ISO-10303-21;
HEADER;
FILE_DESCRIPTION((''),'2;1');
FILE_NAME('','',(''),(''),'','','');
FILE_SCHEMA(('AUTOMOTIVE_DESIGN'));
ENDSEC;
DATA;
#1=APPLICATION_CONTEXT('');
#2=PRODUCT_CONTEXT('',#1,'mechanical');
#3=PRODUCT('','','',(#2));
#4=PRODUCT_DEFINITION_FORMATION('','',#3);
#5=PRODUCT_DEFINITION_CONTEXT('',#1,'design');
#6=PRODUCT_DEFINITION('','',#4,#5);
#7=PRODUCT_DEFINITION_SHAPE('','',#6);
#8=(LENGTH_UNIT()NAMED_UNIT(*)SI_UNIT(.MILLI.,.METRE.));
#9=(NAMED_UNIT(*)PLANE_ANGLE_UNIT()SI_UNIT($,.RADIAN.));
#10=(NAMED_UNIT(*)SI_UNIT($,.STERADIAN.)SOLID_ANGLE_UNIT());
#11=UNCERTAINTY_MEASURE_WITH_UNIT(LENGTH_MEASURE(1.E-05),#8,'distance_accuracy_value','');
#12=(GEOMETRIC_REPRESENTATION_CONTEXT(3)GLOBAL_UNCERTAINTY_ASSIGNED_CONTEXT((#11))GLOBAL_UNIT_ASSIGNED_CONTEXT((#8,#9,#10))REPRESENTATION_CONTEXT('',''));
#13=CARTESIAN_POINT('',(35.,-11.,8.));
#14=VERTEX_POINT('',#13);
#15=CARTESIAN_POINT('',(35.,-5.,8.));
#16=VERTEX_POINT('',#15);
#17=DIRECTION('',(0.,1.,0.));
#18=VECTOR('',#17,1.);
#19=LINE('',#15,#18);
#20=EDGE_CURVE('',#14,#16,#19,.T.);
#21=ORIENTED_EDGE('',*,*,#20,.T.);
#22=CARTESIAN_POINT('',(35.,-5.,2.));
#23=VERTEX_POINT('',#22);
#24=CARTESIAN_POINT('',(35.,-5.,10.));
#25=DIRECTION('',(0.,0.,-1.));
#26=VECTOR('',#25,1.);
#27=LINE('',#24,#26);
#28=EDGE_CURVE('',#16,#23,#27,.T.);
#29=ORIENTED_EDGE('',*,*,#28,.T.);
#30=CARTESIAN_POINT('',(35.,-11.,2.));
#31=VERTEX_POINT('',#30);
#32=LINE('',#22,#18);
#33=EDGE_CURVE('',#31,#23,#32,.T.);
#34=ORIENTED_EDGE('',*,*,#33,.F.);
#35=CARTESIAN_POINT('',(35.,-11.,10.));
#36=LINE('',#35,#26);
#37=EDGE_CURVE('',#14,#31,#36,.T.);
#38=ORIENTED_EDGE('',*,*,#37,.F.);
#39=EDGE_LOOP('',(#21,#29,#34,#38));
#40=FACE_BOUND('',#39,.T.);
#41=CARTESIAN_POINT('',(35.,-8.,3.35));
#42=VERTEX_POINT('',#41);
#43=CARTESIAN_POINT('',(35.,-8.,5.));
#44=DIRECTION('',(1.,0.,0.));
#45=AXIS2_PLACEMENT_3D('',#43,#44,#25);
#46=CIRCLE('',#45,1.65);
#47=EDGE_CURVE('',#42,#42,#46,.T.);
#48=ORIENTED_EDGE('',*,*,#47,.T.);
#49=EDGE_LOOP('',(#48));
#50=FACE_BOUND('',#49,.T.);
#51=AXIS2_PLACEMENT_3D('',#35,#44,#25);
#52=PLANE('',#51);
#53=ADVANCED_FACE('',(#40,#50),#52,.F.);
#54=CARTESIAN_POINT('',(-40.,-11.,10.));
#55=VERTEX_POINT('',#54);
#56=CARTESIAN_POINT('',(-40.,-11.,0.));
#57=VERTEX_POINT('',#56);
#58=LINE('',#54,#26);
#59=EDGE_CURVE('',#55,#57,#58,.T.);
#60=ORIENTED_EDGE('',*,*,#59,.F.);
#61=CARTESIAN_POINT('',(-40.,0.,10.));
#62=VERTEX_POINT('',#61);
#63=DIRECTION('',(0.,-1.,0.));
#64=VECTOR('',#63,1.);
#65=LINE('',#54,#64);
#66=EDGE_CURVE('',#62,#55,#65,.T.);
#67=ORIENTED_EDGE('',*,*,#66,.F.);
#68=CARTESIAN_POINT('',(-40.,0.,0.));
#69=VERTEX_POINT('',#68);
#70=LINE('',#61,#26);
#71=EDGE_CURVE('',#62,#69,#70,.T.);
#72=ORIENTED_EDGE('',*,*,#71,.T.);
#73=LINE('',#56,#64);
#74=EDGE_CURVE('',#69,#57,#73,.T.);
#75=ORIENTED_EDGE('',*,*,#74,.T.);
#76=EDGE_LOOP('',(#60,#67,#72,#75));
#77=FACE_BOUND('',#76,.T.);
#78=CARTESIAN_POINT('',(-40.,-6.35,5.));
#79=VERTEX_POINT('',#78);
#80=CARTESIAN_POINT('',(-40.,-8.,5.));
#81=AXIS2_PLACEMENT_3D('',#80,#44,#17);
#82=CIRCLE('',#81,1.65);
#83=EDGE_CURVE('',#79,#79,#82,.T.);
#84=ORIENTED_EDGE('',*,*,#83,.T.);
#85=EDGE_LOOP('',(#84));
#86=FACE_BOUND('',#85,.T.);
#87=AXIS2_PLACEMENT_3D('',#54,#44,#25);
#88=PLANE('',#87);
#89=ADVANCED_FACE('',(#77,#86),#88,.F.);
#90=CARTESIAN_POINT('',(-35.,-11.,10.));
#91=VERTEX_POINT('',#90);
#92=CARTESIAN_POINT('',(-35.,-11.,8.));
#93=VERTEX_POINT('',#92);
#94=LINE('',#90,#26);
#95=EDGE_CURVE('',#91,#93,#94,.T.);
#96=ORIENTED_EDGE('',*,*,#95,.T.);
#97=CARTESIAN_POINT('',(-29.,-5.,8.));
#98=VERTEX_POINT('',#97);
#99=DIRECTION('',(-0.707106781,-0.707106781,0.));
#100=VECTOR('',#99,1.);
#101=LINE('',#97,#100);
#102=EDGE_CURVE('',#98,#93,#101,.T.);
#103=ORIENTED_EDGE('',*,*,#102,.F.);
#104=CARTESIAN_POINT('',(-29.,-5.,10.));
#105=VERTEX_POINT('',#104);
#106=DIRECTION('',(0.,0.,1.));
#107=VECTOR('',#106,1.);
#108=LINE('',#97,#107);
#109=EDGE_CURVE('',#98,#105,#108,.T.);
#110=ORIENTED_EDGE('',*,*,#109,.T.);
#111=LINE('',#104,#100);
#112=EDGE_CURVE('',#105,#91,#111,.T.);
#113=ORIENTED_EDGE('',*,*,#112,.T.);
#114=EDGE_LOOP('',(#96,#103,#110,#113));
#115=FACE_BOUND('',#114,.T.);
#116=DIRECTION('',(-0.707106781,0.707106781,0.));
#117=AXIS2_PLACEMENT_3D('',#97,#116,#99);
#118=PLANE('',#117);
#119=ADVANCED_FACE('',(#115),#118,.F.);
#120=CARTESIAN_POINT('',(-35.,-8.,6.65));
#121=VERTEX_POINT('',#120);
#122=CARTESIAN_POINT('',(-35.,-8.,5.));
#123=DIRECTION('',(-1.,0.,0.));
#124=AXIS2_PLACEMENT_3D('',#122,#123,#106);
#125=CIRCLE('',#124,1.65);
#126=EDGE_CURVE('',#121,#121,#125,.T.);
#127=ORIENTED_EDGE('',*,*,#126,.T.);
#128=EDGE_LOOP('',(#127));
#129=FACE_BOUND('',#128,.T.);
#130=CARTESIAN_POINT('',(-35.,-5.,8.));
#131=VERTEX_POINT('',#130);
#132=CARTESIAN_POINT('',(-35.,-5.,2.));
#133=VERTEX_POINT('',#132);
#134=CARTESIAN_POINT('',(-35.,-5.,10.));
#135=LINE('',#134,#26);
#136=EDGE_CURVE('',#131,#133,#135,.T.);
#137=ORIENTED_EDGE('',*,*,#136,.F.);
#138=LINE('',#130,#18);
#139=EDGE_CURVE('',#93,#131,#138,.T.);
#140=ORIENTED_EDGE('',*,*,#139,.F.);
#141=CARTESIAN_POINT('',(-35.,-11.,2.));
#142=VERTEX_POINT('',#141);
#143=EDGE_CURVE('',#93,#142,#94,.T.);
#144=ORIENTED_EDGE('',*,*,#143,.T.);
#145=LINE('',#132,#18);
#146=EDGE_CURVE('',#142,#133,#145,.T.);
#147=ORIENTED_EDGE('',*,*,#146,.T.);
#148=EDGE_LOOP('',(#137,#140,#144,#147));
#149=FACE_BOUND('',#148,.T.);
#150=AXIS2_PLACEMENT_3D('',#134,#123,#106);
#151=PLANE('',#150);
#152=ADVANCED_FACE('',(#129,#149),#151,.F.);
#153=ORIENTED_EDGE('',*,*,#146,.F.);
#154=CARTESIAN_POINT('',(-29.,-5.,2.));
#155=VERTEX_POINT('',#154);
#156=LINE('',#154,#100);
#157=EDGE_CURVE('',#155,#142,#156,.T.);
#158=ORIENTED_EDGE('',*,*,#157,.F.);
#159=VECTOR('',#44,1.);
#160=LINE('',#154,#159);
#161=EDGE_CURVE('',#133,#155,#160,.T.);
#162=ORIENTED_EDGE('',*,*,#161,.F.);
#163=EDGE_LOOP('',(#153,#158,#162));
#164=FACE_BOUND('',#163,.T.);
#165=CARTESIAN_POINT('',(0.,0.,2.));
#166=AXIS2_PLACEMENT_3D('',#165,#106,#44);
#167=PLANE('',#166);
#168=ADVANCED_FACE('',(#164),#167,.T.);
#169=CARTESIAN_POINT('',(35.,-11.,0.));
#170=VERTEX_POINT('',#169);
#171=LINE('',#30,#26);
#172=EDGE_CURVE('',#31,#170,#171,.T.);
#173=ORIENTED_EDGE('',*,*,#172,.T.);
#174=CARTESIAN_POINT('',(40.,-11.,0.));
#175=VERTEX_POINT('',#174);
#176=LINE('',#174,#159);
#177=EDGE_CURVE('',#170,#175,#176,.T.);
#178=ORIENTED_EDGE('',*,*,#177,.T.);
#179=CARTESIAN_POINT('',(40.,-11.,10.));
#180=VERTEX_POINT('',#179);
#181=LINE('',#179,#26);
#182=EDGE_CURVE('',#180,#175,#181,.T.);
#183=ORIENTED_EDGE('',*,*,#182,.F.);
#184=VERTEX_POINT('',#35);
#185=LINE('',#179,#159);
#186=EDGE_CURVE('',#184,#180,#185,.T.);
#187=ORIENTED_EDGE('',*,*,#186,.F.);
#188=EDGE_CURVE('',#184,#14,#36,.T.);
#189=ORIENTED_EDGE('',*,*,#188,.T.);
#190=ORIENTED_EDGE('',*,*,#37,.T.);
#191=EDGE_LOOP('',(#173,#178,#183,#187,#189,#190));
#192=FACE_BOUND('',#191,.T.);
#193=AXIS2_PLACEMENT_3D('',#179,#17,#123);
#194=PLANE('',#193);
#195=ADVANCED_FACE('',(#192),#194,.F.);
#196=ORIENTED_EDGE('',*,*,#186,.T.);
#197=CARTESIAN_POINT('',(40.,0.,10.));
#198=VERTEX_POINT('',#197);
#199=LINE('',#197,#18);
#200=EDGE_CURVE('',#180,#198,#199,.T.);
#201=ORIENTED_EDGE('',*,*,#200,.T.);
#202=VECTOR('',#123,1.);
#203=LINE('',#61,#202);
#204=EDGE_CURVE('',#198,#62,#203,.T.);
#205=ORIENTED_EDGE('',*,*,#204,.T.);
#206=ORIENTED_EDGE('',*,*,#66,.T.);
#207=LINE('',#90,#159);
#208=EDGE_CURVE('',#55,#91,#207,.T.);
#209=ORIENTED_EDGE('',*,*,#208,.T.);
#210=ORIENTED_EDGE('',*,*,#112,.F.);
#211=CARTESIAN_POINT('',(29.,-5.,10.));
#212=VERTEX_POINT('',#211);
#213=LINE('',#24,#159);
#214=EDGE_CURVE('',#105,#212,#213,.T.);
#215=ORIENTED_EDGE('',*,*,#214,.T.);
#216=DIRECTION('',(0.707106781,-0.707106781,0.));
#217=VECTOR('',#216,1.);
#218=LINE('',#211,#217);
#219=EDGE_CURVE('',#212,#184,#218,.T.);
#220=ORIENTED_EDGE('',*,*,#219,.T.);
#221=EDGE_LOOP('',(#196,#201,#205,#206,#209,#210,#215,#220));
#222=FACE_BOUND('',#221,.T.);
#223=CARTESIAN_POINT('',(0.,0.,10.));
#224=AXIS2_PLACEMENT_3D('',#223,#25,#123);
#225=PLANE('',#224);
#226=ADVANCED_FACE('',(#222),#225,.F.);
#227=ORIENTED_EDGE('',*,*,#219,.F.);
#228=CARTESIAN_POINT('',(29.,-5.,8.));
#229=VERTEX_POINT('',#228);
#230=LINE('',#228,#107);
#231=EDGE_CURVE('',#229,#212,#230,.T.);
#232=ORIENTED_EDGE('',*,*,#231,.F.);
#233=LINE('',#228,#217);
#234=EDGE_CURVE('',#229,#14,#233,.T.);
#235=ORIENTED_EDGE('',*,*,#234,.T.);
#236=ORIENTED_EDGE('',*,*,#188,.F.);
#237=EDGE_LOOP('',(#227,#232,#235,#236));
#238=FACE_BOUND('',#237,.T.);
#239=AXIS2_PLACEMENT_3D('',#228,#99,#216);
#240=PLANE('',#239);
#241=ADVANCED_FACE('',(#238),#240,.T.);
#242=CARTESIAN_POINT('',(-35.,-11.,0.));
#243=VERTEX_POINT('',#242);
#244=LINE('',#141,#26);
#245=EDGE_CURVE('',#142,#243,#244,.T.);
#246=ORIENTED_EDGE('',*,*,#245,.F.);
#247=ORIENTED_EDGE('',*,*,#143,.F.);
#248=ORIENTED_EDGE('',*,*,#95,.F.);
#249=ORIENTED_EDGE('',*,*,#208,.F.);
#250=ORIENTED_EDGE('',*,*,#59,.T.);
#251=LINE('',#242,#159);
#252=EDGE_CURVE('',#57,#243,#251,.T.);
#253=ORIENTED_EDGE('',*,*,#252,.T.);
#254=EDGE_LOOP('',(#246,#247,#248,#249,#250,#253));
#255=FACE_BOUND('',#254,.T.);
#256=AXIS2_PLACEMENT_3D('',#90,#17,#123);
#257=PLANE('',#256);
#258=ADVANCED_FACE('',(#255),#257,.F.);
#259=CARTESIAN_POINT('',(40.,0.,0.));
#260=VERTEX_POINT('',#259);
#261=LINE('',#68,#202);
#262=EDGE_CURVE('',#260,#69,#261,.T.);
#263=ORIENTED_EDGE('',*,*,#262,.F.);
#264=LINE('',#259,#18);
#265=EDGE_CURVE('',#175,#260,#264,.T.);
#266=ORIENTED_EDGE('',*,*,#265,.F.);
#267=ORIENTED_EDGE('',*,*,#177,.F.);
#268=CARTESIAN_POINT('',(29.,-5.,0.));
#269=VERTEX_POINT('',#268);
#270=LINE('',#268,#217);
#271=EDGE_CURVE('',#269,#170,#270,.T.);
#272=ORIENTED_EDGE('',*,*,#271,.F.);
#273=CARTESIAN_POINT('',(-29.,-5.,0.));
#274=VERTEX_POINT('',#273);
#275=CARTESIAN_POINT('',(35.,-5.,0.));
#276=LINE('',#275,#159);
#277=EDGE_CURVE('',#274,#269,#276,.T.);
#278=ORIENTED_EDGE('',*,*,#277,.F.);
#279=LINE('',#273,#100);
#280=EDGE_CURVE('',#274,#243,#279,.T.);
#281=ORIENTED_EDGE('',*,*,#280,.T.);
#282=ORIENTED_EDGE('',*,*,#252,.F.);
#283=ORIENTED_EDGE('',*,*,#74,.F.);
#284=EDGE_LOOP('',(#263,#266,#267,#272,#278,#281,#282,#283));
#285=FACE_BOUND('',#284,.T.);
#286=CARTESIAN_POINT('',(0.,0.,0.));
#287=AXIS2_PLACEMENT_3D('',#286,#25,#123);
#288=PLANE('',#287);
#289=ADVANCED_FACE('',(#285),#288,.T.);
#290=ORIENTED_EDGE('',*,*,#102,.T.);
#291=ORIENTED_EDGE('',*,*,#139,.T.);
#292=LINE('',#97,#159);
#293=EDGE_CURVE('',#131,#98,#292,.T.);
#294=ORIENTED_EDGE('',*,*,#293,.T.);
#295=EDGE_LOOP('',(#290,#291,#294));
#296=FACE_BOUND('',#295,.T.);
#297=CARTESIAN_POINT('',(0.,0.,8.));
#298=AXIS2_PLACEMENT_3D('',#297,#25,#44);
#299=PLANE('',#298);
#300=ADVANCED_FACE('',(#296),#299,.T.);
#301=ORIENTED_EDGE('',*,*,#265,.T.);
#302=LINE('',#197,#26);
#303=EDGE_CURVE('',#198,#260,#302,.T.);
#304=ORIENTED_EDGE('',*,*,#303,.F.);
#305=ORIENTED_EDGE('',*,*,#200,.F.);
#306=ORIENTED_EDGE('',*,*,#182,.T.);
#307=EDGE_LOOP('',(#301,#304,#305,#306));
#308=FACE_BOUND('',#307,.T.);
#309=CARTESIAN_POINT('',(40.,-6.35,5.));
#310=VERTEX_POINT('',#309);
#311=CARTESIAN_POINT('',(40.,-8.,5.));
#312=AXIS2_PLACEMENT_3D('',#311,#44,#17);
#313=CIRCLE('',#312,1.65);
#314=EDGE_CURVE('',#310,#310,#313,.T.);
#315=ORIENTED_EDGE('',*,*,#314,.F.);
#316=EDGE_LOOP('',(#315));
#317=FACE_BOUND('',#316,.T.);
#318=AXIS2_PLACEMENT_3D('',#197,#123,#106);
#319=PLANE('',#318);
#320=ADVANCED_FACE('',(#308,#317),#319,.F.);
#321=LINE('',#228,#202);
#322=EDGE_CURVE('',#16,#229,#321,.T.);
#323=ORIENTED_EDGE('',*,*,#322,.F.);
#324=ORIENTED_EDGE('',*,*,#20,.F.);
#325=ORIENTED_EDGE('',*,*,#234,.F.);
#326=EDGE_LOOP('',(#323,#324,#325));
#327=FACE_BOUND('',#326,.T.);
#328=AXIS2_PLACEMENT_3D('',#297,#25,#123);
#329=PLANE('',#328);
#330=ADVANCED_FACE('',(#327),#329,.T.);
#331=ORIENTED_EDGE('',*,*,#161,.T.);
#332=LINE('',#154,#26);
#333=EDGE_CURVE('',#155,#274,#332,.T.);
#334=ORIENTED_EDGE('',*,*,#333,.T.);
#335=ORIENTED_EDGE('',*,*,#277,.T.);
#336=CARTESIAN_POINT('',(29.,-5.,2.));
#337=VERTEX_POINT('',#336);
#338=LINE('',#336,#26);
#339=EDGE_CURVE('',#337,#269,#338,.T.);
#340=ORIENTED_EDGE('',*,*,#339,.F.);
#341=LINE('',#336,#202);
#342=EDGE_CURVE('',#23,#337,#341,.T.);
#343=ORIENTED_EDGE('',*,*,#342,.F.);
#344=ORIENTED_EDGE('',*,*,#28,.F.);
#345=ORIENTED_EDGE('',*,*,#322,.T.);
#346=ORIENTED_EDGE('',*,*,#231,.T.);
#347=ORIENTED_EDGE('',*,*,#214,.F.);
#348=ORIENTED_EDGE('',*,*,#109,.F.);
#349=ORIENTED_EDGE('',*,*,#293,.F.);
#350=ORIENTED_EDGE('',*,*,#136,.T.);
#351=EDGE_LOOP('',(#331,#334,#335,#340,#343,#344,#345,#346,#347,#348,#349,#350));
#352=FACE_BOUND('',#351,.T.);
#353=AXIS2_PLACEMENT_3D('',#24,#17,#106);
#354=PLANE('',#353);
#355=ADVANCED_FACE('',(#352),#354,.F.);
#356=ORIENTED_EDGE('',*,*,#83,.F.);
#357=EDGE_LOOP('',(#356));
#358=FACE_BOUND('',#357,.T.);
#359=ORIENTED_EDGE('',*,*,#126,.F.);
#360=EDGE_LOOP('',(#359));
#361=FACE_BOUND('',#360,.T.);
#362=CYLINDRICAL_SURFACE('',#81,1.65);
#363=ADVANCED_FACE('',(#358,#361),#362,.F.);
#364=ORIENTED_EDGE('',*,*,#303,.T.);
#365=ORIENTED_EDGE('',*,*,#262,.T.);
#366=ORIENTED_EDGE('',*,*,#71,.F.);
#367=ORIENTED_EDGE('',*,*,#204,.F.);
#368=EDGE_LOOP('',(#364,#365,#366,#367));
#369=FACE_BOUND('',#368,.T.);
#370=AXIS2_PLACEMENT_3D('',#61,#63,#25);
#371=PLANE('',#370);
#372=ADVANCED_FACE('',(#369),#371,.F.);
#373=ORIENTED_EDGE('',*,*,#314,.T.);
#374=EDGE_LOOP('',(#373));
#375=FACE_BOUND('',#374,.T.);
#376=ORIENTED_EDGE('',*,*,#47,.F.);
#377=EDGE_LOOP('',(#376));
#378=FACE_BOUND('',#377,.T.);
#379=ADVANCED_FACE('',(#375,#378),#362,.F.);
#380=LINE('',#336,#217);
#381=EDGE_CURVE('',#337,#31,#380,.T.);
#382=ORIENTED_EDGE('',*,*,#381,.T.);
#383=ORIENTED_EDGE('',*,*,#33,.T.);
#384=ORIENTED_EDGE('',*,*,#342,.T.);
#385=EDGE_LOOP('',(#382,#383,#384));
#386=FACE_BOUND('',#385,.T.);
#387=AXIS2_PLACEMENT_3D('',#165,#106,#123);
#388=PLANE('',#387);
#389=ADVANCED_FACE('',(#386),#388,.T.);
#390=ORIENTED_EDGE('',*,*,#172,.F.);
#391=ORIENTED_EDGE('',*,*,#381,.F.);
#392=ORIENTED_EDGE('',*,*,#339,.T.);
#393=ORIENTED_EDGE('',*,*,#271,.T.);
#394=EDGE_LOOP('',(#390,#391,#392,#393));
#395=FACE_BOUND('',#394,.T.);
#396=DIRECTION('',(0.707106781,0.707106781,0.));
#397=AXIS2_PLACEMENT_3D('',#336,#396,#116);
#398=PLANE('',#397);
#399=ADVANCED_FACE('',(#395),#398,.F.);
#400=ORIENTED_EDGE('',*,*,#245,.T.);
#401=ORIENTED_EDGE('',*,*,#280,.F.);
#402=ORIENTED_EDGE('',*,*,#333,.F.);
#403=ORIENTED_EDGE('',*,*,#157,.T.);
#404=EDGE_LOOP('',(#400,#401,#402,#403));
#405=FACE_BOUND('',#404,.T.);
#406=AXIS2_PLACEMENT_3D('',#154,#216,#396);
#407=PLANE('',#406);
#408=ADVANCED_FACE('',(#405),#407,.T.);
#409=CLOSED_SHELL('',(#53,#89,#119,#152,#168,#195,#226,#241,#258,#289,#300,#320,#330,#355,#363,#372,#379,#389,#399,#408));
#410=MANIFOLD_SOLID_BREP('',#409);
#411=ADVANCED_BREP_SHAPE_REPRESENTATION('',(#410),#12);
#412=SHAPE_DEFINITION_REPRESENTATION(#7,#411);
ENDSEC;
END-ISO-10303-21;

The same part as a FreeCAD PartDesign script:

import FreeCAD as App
import Part
import Sketcher
Q = App.Units.Quantity


def add_polygon(sketch, points):
    """Adds a closed chain of lines whose ends are joined by coincident constraints."""
    first, n = sketch.GeometryCount, len(points)
    for a, b in zip(points, points[1:] + points[:1]):
        sketch.addGeometry(Part.LineSegment(App.Vector(*a, 0), App.Vector(*b, 0)), False)
    for i in range(n):
        sketch.addConstraint(Sketcher.Constraint("Coincident", first + i, 2, first + (i + 1) % n, 1))

doc = App.newDocument("Part")
body = doc.addObject("PartDesign::Body", "Body")

# Sketch on XY plane
sketch1 = body.newObject("Sketcher::SketchObject", "Sketch")
sketch1.AttachmentSupport = (doc.getObject("XY_Plane"), [""])
sketch1.MapMode = "FlatFace"
add_polygon(sketch1, [(40, 0), (-40, 0), (-40, -11), (-35, -11), (-35, -5), (35, -5), (35, -11), (40, -11)])  # lines 0-7
sketch1.addConstraint(Sketcher.Constraint("Horizontal", 0))
sketch1.addConstraint(Sketcher.Constraint("Vertical", 1))
sketch1.addConstraint(Sketcher.Constraint("Horizontal", 2))
sketch1.addConstraint(Sketcher.Constraint("Vertical", 3))
sketch1.addConstraint(Sketcher.Constraint("Horizontal", 4))
sketch1.addConstraint(Sketcher.Constraint("Vertical", 5))
sketch1.addConstraint(Sketcher.Constraint("Horizontal", 6))
sketch1.addConstraint(Sketcher.Constraint("Vertical", 7))
sketch1.addConstraint(Sketcher.Constraint("Symmetric", 0, 2, 7, 2, -1, 1))
sketch1.addConstraint(Sketcher.Constraint("Symmetric", 2, 2, 5, 2, -2))
sketch1.addConstraint(Sketcher.Constraint("DistanceX", 0, 2, 0, 1, Q("80 mm")))
sketch1.addConstraint(Sketcher.Constraint("DistanceX", 2, 1, 2, 2, Q("5 mm")))
sketch1.addConstraint(Sketcher.Constraint("DistanceY", 1, 2, 1, 1, Q("11 mm")))
sketch1.addConstraint(Sketcher.Constraint("DistanceY", 3, 1, 3, 2, Q("6 mm")))
pad1 = body.newObject("PartDesign::Pad", "Pad")
pad1.Profile = sketch1
pad1.Length = 10

# Sketch on YZ plane
sketch2 = body.newObject("Sketcher::SketchObject", "Sketch001")
sketch2.AttachmentSupport = (doc.getObject("YZ_Plane"), [""])
sketch2.MapMode = "FlatFace"
sketch2.AttachmentOffset = App.Placement(App.Vector(0, 0, -35), App.Rotation())
sketch2.addGeometry(Part.Circle(App.Vector(-8, 5, 0), App.Vector(0, 0, 1), 1.6), False)
sketch2.addConstraint(Sketcher.Constraint("Diameter", 0, Q("3.3 mm")))
sketch2.addConstraint(Sketcher.Constraint("DistanceX", 0, 3, -1, 1, Q("8 mm")))
sketch2.addConstraint(Sketcher.Constraint("DistanceY", -1, 1, 0, 3, Q("5 mm")))
pocket1 = body.newObject("PartDesign::Pocket", "Pocket")
pocket1.Profile = sketch2
pocket1.Type = "ThroughAll"
pocket1.Midplane = True

# Sketch on XY plane
sketch3 = body.newObject("Sketcher::SketchObject", "Sketch002")
sketch3.AttachmentSupport = (doc.getObject("XY_Plane"), [""])
sketch3.MapMode = "FlatFace"
add_polygon(sketch3, [(-29, -5), (-35, -11), (-35, -5)])  # lines 0-2
sketch3.addConstraint(Sketcher.Constraint("Vertical", 1))
sketch3.addConstraint(Sketcher.Constraint("Horizontal", 2))
sketch3.addConstraint(Sketcher.Constraint("Equal", 2, 1))
sketch3.addConstraint(Sketcher.Constraint("DistanceX", 2, 1, 2, 2, Q("6 mm")))
sketch3.addConstraint(Sketcher.Constraint("DistanceX", 0, 2, -1, 1, Q("35 mm")))
sketch3.addConstraint(Sketcher.Constraint("DistanceY", 0, 2, -1, 1, Q("11 mm")))
pad2 = body.newObject("PartDesign::Pad", "Pad001")
pad2.Profile = sketch3
pad2.Length = 2
doc.recompute()

datumplane = body.newObject("PartDesign::Plane", "DatumPlane")
datumplane.AttachmentSupport = (doc.getObject("XY_Plane"), [""])
datumplane.MapMode = "FlatFace"
datumplane.AttachmentOffset = App.Placement(App.Vector(0, 0, 5), App.Rotation())
mirrored = body.newObject("PartDesign::Mirrored", "Mirrored")
mirrored.Originals = [pad2]
mirrored.MirrorPlane = (datumplane, [""])
body.Tip = mirrored
doc.recompute()

mirrored2 = body.newObject("PartDesign::Mirrored", "Mirrored001")
mirrored2.Originals = [pad2]
mirrored2.MirrorPlane = (doc.getObject("YZ_Plane"), [""])
body.Tip = mirrored2

# Sketch on XY plane
sketch4 = body.newObject("Sketcher::SketchObject", "Sketch003")
sketch4.AttachmentSupport = (doc.getObject("XY_Plane"), [""])
sketch4.MapMode = "FlatFace"
sketch4.AttachmentOffset = App.Placement(App.Vector(0, 0, 10), App.Rotation())
add_polygon(sketch4, [(29, -5), (35, -11), (35, -5)])  # lines 0-2
sketch4.addConstraint(Sketcher.Constraint("Vertical", 1))
sketch4.addConstraint(Sketcher.Constraint("Horizontal", 2))
sketch4.addConstraint(Sketcher.Constraint("Equal", 2, 1))
sketch4.addConstraint(Sketcher.Constraint("DistanceX", 2, 2, 2, 1, Q("6 mm")))
sketch4.addConstraint(Sketcher.Constraint("DistanceX", -1, 1, 0, 2, Q("35 mm")))
sketch4.addConstraint(Sketcher.Constraint("DistanceY", 0, 2, -1, 1, Q("11 mm")))
pad3 = body.newObject("PartDesign::Pad", "Pad002")
pad3.Profile = sketch4
pad3.Length = 2
pad3.Reversed = True

doc.recompute()
